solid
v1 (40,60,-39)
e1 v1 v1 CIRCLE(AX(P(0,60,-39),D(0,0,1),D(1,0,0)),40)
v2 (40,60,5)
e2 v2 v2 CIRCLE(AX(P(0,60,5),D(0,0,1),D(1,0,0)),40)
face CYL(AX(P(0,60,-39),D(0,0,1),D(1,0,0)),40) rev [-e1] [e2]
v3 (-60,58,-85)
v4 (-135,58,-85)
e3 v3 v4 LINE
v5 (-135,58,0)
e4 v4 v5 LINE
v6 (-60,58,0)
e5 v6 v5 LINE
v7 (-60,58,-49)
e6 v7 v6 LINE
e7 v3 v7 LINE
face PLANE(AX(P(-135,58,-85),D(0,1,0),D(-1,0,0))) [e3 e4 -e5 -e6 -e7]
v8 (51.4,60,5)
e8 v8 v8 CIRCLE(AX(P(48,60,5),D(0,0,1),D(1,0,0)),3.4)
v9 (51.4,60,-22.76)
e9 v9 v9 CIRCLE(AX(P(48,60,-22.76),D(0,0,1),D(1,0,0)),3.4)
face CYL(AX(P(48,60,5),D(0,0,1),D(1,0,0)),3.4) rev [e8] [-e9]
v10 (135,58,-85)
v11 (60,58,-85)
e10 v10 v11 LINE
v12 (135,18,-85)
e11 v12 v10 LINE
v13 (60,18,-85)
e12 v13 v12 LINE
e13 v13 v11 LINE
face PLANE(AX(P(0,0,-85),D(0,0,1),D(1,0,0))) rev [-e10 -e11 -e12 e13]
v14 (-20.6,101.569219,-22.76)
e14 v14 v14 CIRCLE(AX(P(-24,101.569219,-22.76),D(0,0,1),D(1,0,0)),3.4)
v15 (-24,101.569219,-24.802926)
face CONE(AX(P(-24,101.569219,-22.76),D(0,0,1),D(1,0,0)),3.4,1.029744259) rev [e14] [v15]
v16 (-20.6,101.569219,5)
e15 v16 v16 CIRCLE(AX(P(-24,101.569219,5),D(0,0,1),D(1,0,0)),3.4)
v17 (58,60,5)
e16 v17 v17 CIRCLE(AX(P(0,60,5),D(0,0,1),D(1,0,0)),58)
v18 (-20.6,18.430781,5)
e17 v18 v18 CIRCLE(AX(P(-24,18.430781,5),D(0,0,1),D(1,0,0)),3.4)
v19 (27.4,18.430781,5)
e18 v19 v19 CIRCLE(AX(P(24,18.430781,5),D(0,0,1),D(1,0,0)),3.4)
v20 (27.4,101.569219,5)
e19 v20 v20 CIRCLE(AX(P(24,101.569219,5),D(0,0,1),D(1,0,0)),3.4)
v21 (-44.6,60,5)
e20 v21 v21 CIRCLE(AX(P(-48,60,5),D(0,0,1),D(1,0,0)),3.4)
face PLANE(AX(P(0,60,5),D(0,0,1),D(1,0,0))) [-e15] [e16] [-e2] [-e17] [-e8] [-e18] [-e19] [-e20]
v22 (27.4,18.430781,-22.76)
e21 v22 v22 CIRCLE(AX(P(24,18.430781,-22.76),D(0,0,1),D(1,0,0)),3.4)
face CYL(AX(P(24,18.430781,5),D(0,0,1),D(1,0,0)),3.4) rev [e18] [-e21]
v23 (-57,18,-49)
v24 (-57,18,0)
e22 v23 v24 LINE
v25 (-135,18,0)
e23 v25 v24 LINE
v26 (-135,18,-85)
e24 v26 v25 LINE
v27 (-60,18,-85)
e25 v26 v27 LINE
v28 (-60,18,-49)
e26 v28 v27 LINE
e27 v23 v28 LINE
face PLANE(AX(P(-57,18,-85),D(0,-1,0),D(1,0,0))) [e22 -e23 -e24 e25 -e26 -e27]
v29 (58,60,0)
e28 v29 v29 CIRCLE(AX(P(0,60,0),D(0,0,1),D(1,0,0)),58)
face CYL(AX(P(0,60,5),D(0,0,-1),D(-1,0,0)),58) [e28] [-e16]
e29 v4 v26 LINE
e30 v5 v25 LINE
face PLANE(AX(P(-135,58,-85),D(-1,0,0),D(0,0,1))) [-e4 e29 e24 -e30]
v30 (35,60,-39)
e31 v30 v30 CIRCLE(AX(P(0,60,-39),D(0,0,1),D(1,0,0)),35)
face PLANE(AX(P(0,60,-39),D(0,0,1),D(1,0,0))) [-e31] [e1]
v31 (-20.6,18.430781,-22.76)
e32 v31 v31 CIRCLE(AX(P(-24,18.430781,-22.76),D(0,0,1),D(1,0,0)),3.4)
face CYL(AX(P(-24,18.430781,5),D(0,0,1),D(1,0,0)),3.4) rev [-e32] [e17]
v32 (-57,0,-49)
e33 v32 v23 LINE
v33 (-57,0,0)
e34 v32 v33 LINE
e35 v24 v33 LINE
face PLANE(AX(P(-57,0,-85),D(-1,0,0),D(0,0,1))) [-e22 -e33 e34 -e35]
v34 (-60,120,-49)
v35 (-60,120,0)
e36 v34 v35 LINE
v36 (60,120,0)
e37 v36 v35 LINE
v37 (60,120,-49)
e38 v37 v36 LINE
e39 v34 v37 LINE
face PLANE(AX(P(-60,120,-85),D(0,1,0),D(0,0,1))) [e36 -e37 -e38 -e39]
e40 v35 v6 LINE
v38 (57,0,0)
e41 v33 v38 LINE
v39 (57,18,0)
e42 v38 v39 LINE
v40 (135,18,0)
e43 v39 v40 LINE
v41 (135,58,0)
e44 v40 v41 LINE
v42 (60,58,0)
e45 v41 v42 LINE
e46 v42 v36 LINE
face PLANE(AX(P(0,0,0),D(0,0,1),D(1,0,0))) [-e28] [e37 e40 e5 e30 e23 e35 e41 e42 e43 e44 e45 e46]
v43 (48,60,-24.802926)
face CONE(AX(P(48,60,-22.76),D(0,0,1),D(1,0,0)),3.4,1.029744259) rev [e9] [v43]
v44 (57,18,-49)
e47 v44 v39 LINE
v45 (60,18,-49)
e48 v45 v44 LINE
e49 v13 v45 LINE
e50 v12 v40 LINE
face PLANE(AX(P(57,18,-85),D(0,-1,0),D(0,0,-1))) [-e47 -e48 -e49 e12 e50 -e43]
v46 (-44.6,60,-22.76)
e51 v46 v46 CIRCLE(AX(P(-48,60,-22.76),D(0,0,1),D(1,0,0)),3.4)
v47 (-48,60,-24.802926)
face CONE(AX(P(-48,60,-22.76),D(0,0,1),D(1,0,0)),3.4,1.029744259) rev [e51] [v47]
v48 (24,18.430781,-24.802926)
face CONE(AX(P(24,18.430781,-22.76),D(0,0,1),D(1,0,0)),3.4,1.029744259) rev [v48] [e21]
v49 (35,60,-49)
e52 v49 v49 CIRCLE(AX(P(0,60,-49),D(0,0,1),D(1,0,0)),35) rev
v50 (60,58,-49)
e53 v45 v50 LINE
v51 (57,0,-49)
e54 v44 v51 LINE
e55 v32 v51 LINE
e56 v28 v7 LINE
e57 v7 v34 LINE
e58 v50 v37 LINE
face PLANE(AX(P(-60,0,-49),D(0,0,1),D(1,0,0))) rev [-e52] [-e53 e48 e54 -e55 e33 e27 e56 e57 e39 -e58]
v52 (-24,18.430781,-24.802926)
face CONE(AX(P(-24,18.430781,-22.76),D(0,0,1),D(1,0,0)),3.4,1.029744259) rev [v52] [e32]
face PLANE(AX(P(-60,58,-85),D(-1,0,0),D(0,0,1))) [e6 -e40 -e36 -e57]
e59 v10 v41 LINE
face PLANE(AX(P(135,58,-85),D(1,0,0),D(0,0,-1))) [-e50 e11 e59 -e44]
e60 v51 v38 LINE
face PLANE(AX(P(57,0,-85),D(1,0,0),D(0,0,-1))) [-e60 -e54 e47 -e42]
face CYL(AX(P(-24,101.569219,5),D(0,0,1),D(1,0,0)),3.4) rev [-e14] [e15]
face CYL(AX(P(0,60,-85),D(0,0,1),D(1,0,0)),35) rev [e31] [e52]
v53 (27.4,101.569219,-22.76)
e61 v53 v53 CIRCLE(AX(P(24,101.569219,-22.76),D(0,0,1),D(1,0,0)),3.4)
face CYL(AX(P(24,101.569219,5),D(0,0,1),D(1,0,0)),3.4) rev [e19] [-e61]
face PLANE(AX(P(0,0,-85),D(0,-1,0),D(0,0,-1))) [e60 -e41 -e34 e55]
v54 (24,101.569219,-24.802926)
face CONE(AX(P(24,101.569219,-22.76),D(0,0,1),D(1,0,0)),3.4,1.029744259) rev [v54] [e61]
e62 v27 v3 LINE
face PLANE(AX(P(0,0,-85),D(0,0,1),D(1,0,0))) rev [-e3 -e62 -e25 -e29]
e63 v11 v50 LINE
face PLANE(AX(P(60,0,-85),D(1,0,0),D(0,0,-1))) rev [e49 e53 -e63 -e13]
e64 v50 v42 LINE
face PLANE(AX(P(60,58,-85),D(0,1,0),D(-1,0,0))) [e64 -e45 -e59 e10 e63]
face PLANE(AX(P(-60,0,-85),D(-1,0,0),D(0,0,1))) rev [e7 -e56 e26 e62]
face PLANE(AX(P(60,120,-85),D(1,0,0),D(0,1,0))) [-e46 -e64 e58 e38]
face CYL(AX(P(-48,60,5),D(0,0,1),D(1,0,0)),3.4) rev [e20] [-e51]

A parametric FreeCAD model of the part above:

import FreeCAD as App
import Part
import Sketcher
from FreeCAD import Vector
Q = App.Units.Quantity


def add_polygon(sketch, points):
    """Adds a closed chain of lines whose ends are joined by coincident constraints."""
    first, n = sketch.GeometryCount, len(points)
    for a, b in zip(points, points[1:] + points[:1]):
        sketch.addGeometry(Part.LineSegment(App.Vector(*a, 0), App.Vector(*b, 0)), False)
    for i in range(n):
        sketch.addConstraint(Sketcher.Constraint("Coincident", first + i, 2, first + (i + 1) % n, 1))

doc = App.newDocument("Part")
body = doc.addObject("PartDesign::Body", "Body")

sketch1 = doc.addObject("Sketcher::SketchObject", "Sketch")
body.addObject(sketch1)
sketch1.AttachmentSupport = (doc.XY_Plane, [""])
sketch1.MapMode = "FlatFace"
add_polygon(sketch1, [(-57, 0), (57, 0), (57, 18), (135, 18), (135, 58), (60, 58), (60, 120), (-60, 120), (-60, 58), (-135, 58), (-135, 18), (-57, 18)])
sketch1.addConstraint([
    Sketcher.Constraint("Horizontal", 0),
    Sketcher.Constraint("Vertical", 1),
    Sketcher.Constraint("Horizontal", 2),
    Sketcher.Constraint("Vertical", 3),
    Sketcher.Constraint("Horizontal", 4),
    Sketcher.Constraint("Vertical", 5),
    Sketcher.Constraint("Horizontal", 6),
    Sketcher.Constraint("Vertical", 7),
    Sketcher.Constraint("Horizontal", 8),
    Sketcher.Constraint("Vertical", 9),
    Sketcher.Constraint("Horizontal", 10),
    Sketcher.Constraint("Vertical", 11),
    Sketcher.Constraint("Symmetric", 0, 2, 11, 2, -1, 1),
    Sketcher.Constraint("Symmetric", 4, 2, 7, 2, -2),
    Sketcher.Constraint("Symmetric", 2, 2, 9, 2, -2),
    Sketcher.Constraint("DistanceX", 0, 1, 0, 2, Q("114 mm")),
    Sketcher.Constraint("DistanceX", 2, 1, 2, 2, Q("78 mm")),
    Sketcher.Constraint("DistanceX", 4, 2, 4, 1, Q("75 mm")),
    Sketcher.Constraint("DistanceY", 1, 1, 1, 2, Q("18 mm")),
    Sketcher.Constraint("DistanceY", 3, 1, 3, 2, Q("40 mm")),
    Sketcher.Constraint("DistanceY", 5, 1, 5, 2, Q("62 mm")),
])
pad1 = doc.addObject("PartDesign::Pad", "Pad")
body.addObject(pad1)
pad1.Profile = sketch1
pad1.Length = 85
pad1.Reversed = True

sketch2 = doc.addObject("Sketcher::SketchObject", "Sketch001")
body.addObject(sketch2)
sketch2.AttachmentSupport = (doc.XY_Plane, [""])
sketch2.MapMode = "FlatFace"
sketch2.addGeometry(Part.Circle(Vector(0, 60, 0), Vector(0, 0, 1), 58), False)
sketch2.addConstraint([
    Sketcher.Constraint("PointOnObject", 0, 3, -2),
    Sketcher.Constraint("Diameter", 0, Q("116 mm")),
    Sketcher.Constraint("DistanceY", -1, 1, 0, 3, Q("60 mm")),
])
pad2 = doc.addObject("PartDesign::Pad", "Pad001")
body.addObject(pad2)
pad2.Profile = sketch2
pad2.Length = 5

sketch3 = doc.addObject("Sketcher::SketchObject", "Sketch002")
body.addObject(sketch3)
sketch3.AttachmentSupport = (doc.XY_Plane, [""])
sketch3.MapMode = "FlatFace"
sketch3.AttachmentOffset = App.Placement(Vector(0, 0, 5), App.Rotation())
sketch3.addGeometry(Part.Circle(Vector(0, 60, 0), Vector(0, 0, 1), 40), False)
sketch3.addConstraint([
    Sketcher.Constraint("PointOnObject", 0, 3, -2),
    Sketcher.Constraint("Diameter", 0, Q("80 mm")),
    Sketcher.Constraint("DistanceY", -1, 1, 0, 3, Q("60 mm")),
])
pocket1 = doc.addObject("PartDesign::Pocket", "Pocket")
body.addObject(pocket1)
pocket1.Profile = sketch3
pocket1.Length = 44

sketch4 = doc.addObject("Sketcher::SketchObject", "Sketch003")
body.addObject(sketch4)
sketch4.AttachmentSupport = (doc.XY_Plane, [""])
sketch4.MapMode = "FlatFace"
sketch4.AttachmentOffset = App.Placement(Vector(0, 0, -39), App.Rotation())
sketch4.addGeometry(Part.Circle(Vector(0, 60, 0), Vector(0, 0, 1), 35), False)
sketch4.addConstraint([
    Sketcher.Constraint("PointOnObject", 0, 3, -2),
    Sketcher.Constraint("Diameter", 0, Q("70 mm")),
    Sketcher.Constraint("DistanceY", -1, 1, 0, 3, Q("60 mm")),
])
pocket2 = doc.addObject("PartDesign::Pocket", "Pocket001")
body.addObject(pocket2)
pocket2.Profile = sketch4
pocket2.Type = "ThroughAll"

sketch5 = doc.addObject("Sketcher::SketchObject", "Sketch004")
body.addObject(sketch5)
sketch5.AttachmentSupport = (doc.YZ_Plane, [""])
sketch5.MapMode = "FlatFace"
sketch5.AttachmentOffset = App.Placement(Vector(0, 0, 24), App.Rotation())
add_polygon(sketch5, [(101.6, -24.8), (101.6, 5), (98.2, 5), (98.2, -22.8)])
sketch5.addGeometry(Part.LineSegment(Vector(101.6, 5, 0), Vector(101.6, -24.8, 0)), True)
sketch5.addConstraint([
    Sketcher.Constraint("Vertical", 0),
    Sketcher.Constraint("Horizontal", 1),
    Sketcher.Constraint("Vertical", 2),
    Sketcher.Constraint("Vertical", 4),
    Sketcher.Constraint("Coincident", 4, 1, 0, 2),
    Sketcher.Constraint("Equal", 0, 4),
    Sketcher.Constraint("Angle", 3, Q("-31 deg")),
    Sketcher.Constraint("DistanceX", 1, 2, 1, 1, Q("3.4 mm")),
    Sketcher.Constraint("DistanceY", -1, 1, 0, 2, Q("5 mm")),
    Sketcher.Constraint("DistanceY", 2, 2, 2, 1, Q("27.76 mm")),
    Sketcher.Constraint("DistanceX", -1, 1, 0, 2, Q("101.569219 mm")),
])
groove = doc.addObject("PartDesign::Groove", "Groove")
body.addObject(groove)
groove.Profile = sketch5
groove.ReferenceAxis = (sketch5, ["Axis0"])
groove.Angle = 360
doc.recompute()

datumline = doc.addObject("PartDesign::Line", "DatumLine")
body.addObject(datumline)
datumline.Placement = App.Placement(Vector(0, 60, 0), App.Rotation(Vector(0, 0, 1), Vector(0, 0, 1)))
polarpattern = doc.addObject("PartDesign::PolarPattern", "PolarPattern")
body.addObject(polarpattern)
polarpattern.Originals = [groove]
polarpattern.Axis = (datumline, [""])
polarpattern.Angle = 360
polarpattern.Occurrences = 6
body.Tip = polarpattern

sketch6 = doc.addObject("Sketcher::SketchObject", "Sketch005")
body.addObject(sketch6)
sketch6.AttachmentSupport = (doc.XZ_Plane, [""])
sketch6.MapMode = "FlatFace"
sketch6.AttachmentOffset = App.Placement(Vector(0, 0, -120), App.Rotation())
add_polygon(sketch6, [(-60, -85), (-60, -49), (60, -49), (60, -85)])
sketch6.addConstraint([
    Sketcher.Constraint("Vertical", 0),
    Sketcher.Constraint("Horizontal", 1),
    Sketcher.Constraint("Vertical", 2),
    Sketcher.Constraint("Horizontal", 3),
    Sketcher.Constraint("DistanceX", 1, 1, 1, 2, Q("120 mm")),
    Sketcher.Constraint("DistanceY", 0, 1, 0, 2, Q("36 mm")),
    Sketcher.Constraint("DistanceX", 0, 2, -1, 1, Q("60 mm")),
    Sketcher.Constraint("DistanceY", 0, 2, -1, 1, Q("49 mm")),
])
pocket3 = doc.addObject("PartDesign::Pocket", "Pocket002")
body.addObject(pocket3)
pocket3.Profile = sketch6
pocket3.Type = "ThroughAll"
pocket3.Reversed = True

doc.recompute()
